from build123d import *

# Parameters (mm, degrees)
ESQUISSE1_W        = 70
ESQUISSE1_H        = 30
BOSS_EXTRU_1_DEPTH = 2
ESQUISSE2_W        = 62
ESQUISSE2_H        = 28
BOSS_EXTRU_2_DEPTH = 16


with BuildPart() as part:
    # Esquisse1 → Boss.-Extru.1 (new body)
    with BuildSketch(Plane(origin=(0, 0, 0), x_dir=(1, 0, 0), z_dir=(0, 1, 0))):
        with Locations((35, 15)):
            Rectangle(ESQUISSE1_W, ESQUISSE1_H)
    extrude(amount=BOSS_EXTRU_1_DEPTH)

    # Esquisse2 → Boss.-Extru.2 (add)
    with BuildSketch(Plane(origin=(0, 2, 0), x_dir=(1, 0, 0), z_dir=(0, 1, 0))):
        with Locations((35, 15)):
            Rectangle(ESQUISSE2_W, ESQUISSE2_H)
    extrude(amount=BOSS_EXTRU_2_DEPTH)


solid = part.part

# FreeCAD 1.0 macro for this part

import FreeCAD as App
import Part
import Sketcher
from FreeCAD import Vector

doc = App.newDocument("Part")
params = doc.addObject("Spreadsheet::Sheet", "Params")
for row, (alias, value) in enumerate([
    ("sketch1_width", "70 mm"),
    ("sketch1_height", "30 mm"),
    ("pad1_length", "2 mm"),
    ("sketch2_width", "62 mm"),
    ("sketch2_height", "28 mm"),
    ("pad2_length", "16 mm"),
], start=1):
    params.set(f"A{row}", alias)
    params.set(f"B{row}", "=" + value)
    params.setAlias(f"B{row}", alias)

body = doc.addObject("PartDesign::Body", "Body")

sketch1 = body.newObject("Sketcher::SketchObject", "Sketch")
sketch1.AttachmentSupport = (doc.getObject("XZ_Plane"), [""])
sketch1.MapMode = "FlatFace"
sketch1.addGeometry([
    Part.LineSegment(Vector(0, -30, 0), Vector(0, 0, 0)),
    Part.LineSegment(Vector(0, 0, 0), Vector(70, 0, 0)),
    Part.LineSegment(Vector(70, 0, 0), Vector(70, -30, 0)),
    Part.LineSegment(Vector(70, -30, 0), Vector(0, -30, 0)),
], False)
sketch1.addConstraint([
    Sketcher.Constraint("Coincident", 0, 2, 1, 1),
    Sketcher.Constraint("Coincident", 1, 2, 2, 1),
    Sketcher.Constraint("Coincident", 2, 2, 3, 1),
    Sketcher.Constraint("Coincident", 3, 2, 0, 1),
    Sketcher.Constraint("Vertical", 0),
    Sketcher.Constraint("Horizontal", 1),
    Sketcher.Constraint("Vertical", 2),
    Sketcher.Constraint("Horizontal", 3),
    Sketcher.Constraint("Coincident", 0, 2, -1, 1),
    Sketcher.Constraint("DistanceX", 1, 1, 1, 2, 70.0),
    Sketcher.Constraint("DistanceY", 0, 1, 0, 2, 30.0),
])
sketch1.setExpression("Constraints[9]", "Params.sketch1_width")
sketch1.setExpression("Constraints[10]", "Params.sketch1_height")
pad1 = body.newObject("PartDesign::Pad", "Pad")
pad1.Profile = sketch1
pad1.setExpression("Length", "Params.pad1_length")
pad1.Reversed = True

sketch2 = body.newObject("Sketcher::SketchObject", "Sketch001")
sketch2.AttachmentSupport = (doc.getObject("XZ_Plane"), [""])
sketch2.MapMode = "FlatFace"
sketch2.AttachmentOffset = App.Placement(Vector(0, 0, -2), App.Rotation())
sketch2.addGeometry([
    Part.LineSegment(Vector(4, -29, 0), Vector(4, -1, 0)),
    Part.LineSegment(Vector(4, -1, 0), Vector(66, -1, 0)),
    Part.LineSegment(Vector(66, -1, 0), Vector(66, -29, 0)),
    Part.LineSegment(Vector(66, -29, 0), Vector(4, -29, 0)),
], False)
sketch2.addConstraint([
    Sketcher.Constraint("Coincident", 0, 2, 1, 1),
    Sketcher.Constraint("Coincident", 1, 2, 2, 1),
    Sketcher.Constraint("Coincident", 2, 2, 3, 1),
    Sketcher.Constraint("Coincident", 3, 2, 0, 1),
    Sketcher.Constraint("Vertical", 0),
    Sketcher.Constraint("Horizontal", 1),
    Sketcher.Constraint("Vertical", 2),
    Sketcher.Constraint("Horizontal", 3),
    Sketcher.Constraint("DistanceX", 1, 1, 1, 2, 62.0),
    Sketcher.Constraint("DistanceY", 0, 1, 0, 2, 28.0),
    Sketcher.Constraint("DistanceX", -1, 1, 0, 2, 4.0),
    Sketcher.Constraint("DistanceY", 0, 2, -1, 1, 1.0),
])
sketch2.setExpression("Constraints[8]", "Params.sketch2_width")
sketch2.setExpression("Constraints[9]", "Params.sketch2_height")
pad2 = body.newObject("PartDesign::Pad", "Pad001")
pad2.Profile = sketch2
pad2.setExpression("Length", "Params.pad2_length")
pad2.Reversed = True

doc.recompute()
